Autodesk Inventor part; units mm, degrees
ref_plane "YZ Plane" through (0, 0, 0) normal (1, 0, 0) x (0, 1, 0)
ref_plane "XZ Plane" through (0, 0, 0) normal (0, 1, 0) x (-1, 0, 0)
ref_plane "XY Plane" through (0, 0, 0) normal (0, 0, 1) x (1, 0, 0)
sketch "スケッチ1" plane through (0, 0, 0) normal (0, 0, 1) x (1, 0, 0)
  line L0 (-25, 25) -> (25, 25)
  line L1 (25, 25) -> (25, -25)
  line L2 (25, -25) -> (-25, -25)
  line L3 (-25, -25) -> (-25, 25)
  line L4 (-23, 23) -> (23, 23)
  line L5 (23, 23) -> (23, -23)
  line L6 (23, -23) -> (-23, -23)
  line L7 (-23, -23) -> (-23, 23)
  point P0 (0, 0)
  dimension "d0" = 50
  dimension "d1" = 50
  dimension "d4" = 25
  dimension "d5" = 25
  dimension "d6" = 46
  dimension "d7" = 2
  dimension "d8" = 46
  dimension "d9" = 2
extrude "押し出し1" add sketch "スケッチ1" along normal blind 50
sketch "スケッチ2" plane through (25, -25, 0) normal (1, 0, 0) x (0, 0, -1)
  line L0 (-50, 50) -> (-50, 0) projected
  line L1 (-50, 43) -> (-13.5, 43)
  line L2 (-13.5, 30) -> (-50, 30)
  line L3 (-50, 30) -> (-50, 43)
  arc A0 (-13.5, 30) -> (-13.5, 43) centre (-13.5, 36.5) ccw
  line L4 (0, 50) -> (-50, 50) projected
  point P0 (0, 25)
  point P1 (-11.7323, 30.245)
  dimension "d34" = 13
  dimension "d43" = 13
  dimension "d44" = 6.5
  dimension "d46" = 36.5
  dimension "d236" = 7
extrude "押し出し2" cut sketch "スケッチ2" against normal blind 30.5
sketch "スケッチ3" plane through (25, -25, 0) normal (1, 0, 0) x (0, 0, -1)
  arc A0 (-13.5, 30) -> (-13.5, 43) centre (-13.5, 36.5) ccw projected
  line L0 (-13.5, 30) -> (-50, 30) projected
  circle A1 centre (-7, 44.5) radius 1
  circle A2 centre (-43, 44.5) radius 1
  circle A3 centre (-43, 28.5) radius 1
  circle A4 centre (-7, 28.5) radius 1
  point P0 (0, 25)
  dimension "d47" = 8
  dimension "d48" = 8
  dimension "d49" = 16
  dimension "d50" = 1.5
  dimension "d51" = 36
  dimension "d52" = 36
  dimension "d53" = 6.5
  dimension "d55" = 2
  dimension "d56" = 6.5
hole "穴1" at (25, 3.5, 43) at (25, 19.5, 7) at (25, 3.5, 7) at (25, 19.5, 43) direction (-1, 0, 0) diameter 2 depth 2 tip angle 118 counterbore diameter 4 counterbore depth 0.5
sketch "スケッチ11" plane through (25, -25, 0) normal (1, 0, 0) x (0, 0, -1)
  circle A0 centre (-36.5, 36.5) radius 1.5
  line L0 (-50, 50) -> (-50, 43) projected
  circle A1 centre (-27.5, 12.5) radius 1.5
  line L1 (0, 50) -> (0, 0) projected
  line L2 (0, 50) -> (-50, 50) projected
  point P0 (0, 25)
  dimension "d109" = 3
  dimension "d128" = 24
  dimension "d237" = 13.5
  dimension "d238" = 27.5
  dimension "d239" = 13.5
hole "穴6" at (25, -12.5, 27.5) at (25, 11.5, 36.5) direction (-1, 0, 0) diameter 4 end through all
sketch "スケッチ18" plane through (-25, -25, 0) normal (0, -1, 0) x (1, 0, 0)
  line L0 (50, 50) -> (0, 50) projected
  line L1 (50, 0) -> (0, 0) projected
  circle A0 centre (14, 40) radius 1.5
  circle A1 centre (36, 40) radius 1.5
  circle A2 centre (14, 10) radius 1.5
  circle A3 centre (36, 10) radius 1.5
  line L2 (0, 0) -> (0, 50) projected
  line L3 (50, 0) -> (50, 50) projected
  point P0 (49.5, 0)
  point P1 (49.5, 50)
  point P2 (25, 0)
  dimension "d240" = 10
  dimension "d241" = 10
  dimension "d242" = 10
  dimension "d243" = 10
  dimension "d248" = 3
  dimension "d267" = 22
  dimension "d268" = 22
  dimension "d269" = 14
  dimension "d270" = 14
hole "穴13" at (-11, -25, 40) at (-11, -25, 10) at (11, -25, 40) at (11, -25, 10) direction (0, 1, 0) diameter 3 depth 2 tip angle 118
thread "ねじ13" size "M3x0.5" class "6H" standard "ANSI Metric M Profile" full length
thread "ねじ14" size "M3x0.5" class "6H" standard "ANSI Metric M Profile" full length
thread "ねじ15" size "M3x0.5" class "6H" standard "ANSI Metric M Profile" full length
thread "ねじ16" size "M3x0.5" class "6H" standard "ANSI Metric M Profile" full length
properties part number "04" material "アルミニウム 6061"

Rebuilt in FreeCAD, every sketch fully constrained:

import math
import FreeCAD as App
import Part
import Sketcher

V = App.Vector

doc = App.newDocument("Part")
body = doc.addObject("PartDesign::Body", "Body")

sketch1 = body.newObject("Sketcher::SketchObject", "Sketch")
sketch1.AttachmentSupport = (doc.getObject("XY_Plane"), [""])
sketch1.MapMode = "FlatFace"
sketch1.addGeometry([
    Part.LineSegment(V(25, 25, 0), V(-25, 25, 0)),
    Part.LineSegment(V(-25, 25, 0), V(-25, -25, 0)),
    Part.LineSegment(V(-25, -25, 0), V(25, -25, 0)),
    Part.LineSegment(V(25, -25, 0), V(25, 25, 0)),
    Part.LineSegment(V(-23, -23, 0), V(-23, 23, 0)),
    Part.LineSegment(V(-23, 23, 0), V(23, 23, 0)),
    Part.LineSegment(V(23, 23, 0), V(23, -23, 0)),
    Part.LineSegment(V(23, -23, 0), V(-23, -23, 0)),
], False)
sketch1.addConstraint([
    Sketcher.Constraint("Coincident", 0, 2, 1, 1),
    Sketcher.Constraint("Coincident", 1, 2, 2, 1),
    Sketcher.Constraint("Coincident", 2, 2, 3, 1),
    Sketcher.Constraint("Coincident", 3, 2, 0, 1),
    Sketcher.Constraint("Coincident", 4, 2, 5, 1),
    Sketcher.Constraint("Coincident", 5, 2, 6, 1),
    Sketcher.Constraint("Coincident", 6, 2, 7, 1),
    Sketcher.Constraint("Coincident", 7, 2, 4, 1),
    Sketcher.Constraint("Horizontal", 0),
    Sketcher.Constraint("Vertical", 1),
    Sketcher.Constraint("Horizontal", 2),
    Sketcher.Constraint("Vertical", 3),
    Sketcher.Constraint("Vertical", 4),
    Sketcher.Constraint("Horizontal", 5),
    Sketcher.Constraint("Vertical", 6),
    Sketcher.Constraint("Horizontal", 7),
    Sketcher.Constraint("Symmetric", 0, 2, 2, 2, -1, 1),
    Sketcher.Constraint("Symmetric", 4, 2, 6, 2, -1, 1),
    Sketcher.Constraint("Equal", 2, 1),
    Sketcher.Constraint("Equal", 7, 4),
    Sketcher.Constraint("DistanceX", 0, 2, 0, 1, 50.0),
    Sketcher.Constraint("DistanceX", 5, 1, 5, 2, 46.0),
])
pad1 = body.newObject("PartDesign::Pad", "Pad")
pad1.Profile = sketch1
pad1.Length = 50

sketch2 = body.newObject("Sketcher::SketchObject", "Sketch001")
sketch2.AttachmentSupport = (doc.getObject("YZ_Plane"), [""])
sketch2.MapMode = "FlatFace"
sketch2.AttachmentOffset = App.Placement(V(0, 0, 25), App.Rotation())
sketch2.addGeometry([
    Part.LineSegment(V(18, 13.5, 0), V(18, 50, 0)),
    Part.LineSegment(V(18, 50, 0), V(5, 50, 0)),
    Part.LineSegment(V(5, 50, 0), V(5, 13.5, 0)),
    Part.ArcOfCircle(Part.Circle(V(11.5, 13.5, 0), V(0, 0, 1), 6.5), math.radians(180), math.radians(360)),
], False)
sketch2.addConstraint([
    Sketcher.Constraint("Coincident", 0, 2, 1, 1),
    Sketcher.Constraint("Coincident", 1, 2, 2, 1),
    Sketcher.Constraint("Tangent", 2, 2, 3, 1),
    Sketcher.Constraint("Tangent", 3, 2, 0, 1),
    Sketcher.Constraint("Vertical", 0),
    Sketcher.Constraint("Horizontal", 1),
    Sketcher.Constraint("Vertical", 2),
    Sketcher.Constraint("Radius", 3, 6.5),
    Sketcher.Constraint("DistanceY", 0, 1, 0, 2, 36.5),
    Sketcher.Constraint("DistanceX", -1, 1, 0, 2, 18.0),
    Sketcher.Constraint("DistanceY", -1, 1, 0, 2, 50.0),
])
pocket1 = body.newObject("PartDesign::Pocket", "Pocket")
pocket1.Profile = sketch2
pocket1.Length = 30.5

sketch3 = body.newObject("Sketcher::SketchObject", "Sketch002")
sketch3.AttachmentSupport = (doc.getObject("YZ_Plane"), [""])
sketch3.MapMode = "FlatFace"
sketch3.AttachmentOffset = App.Placement(V(0, 0, 25), App.Rotation())
sketch3.addGeometry([
    Part.Circle(V(3.5, 43, 0), V(0, 0, 1), 1),
    Part.Circle(V(19.5, 7, 0), V(0, 0, 1), 1),
    Part.Circle(V(3.5, 7, 0), V(0, 0, 1), 1),
    Part.Circle(V(19.5, 43, 0), V(0, 0, 1), 1),
], False)
sketch3.addConstraint([
    Sketcher.Constraint("Equal", 0, 1),
    Sketcher.Constraint("Equal", 1, 2),
    Sketcher.Constraint("Equal", 2, 3),
    Sketcher.Constraint("Horizontal", 1, 3, 2, 3),
    Sketcher.Constraint("Horizontal", 0, 3, 3, 3),
    Sketcher.Constraint("Vertical", 0, 3, 2, 3),
    Sketcher.Constraint("Vertical", 1, 3, 3, 3),
    Sketcher.Constraint("Diameter", 0, 2.0),
    Sketcher.Constraint("DistanceY", -1, 1, 0, 3, 43.0),
    Sketcher.Constraint("DistanceY", -1, 1, 1, 3, 7.0),
    Sketcher.Constraint("DistanceX", 0, 3, 1, 3, 16.0),
    Sketcher.Constraint("DistanceX", -1, 1, 0, 3, 3.5),
])
doc.recompute()
hole = body.newObject("PartDesign::Hole", "Hole")
hole.Profile = sketch3
hole.ThreadType = "None"
hole.Diameter = 2
hole.DepthType = "Dimension"
hole.Depth = 2
hole.DrillPoint = "Angled"
hole.DrillPointAngle = 118
hole.HoleCutType = "Counterbore"
hole.HoleCutDiameter = 4
hole.HoleCutDepth = 0.5

sketch4 = body.newObject("Sketcher::SketchObject", "Sketch003")
sketch4.AttachmentSupport = (doc.getObject("YZ_Plane"), [""])
sketch4.MapMode = "FlatFace"
sketch4.AttachmentOffset = App.Placement(V(0, 0, 25), App.Rotation())
sketch4.addGeometry([
    Part.Circle(V(-12.5, 27.5, 0), V(0, 0, 1), 2),
    Part.Circle(V(11.5, 36.5, 0), V(0, 0, 1), 2),
], False)
sketch4.addConstraint([
    Sketcher.Constraint("Equal", 0, 1),
    Sketcher.Constraint("Diameter", 0, 4.0),
    Sketcher.Constraint("DistanceX", 0, 3, 1, 3, 24.0),
    Sketcher.Constraint("DistanceY", 0, 3, 1, 3, 9.0),
    Sketcher.Constraint("DistanceX", 0, 3, -1, 1, 12.5),
    Sketcher.Constraint("DistanceY", -1, 1, 0, 3, 27.5),
])
doc.recompute()
hole2 = body.newObject("PartDesign::Hole", "Hole001")
hole2.Profile = sketch4
hole2.ThreadType = "None"
hole2.Diameter = 4
hole2.DepthType = "ThroughAll"

sketch5 = body.newObject("Sketcher::SketchObject", "Sketch004")
sketch5.AttachmentSupport = (doc.getObject("XZ_Plane"), [""])
sketch5.MapMode = "FlatFace"
sketch5.AttachmentOffset = App.Placement(V(0, 0, 25), App.Rotation())
sketch5.addGeometry([
    Part.Circle(V(-11, 40, 0), V(0, 0, 1), 1.5),
    Part.Circle(V(-11, 10, 0), V(0, 0, 1), 1.5),
    Part.Circle(V(11, 40, 0), V(0, 0, 1), 1.5),
    Part.Circle(V(11, 10, 0), V(0, 0, 1), 1.5),
], False)
sketch5.addConstraint([
    Sketcher.Constraint("Equal", 0, 1),
    Sketcher.Constraint("Equal", 1, 2),
    Sketcher.Constraint("Equal", 2, 3),
    Sketcher.Constraint("Symmetric", 0, 3, 2, 3, -2),
    Sketcher.Constraint("Symmetric", 1, 3, 3, 3, -2),
    Sketcher.Constraint("Vertical", 0, 3, 1, 3),
    Sketcher.Constraint("Diameter", 0, 3.0),
    Sketcher.Constraint("DistanceX", 0, 3, -1, 1, 11.0),
    Sketcher.Constraint("DistanceY", -1, 1, 0, 3, 40.0),
    Sketcher.Constraint("DistanceY", -1, 1, 1, 3, 10.0),
])
doc.recompute()
hole3 = body.newObject("PartDesign::Hole", "Hole002")
hole3.Profile = sketch5
hole3.ThreadType = "None"
hole3.Diameter = 3
hole3.DepthType = "Dimension"
hole3.Depth = 2
hole3.DrillPoint = "Angled"
hole3.DrillPointAngle = 118

doc.recompute()
